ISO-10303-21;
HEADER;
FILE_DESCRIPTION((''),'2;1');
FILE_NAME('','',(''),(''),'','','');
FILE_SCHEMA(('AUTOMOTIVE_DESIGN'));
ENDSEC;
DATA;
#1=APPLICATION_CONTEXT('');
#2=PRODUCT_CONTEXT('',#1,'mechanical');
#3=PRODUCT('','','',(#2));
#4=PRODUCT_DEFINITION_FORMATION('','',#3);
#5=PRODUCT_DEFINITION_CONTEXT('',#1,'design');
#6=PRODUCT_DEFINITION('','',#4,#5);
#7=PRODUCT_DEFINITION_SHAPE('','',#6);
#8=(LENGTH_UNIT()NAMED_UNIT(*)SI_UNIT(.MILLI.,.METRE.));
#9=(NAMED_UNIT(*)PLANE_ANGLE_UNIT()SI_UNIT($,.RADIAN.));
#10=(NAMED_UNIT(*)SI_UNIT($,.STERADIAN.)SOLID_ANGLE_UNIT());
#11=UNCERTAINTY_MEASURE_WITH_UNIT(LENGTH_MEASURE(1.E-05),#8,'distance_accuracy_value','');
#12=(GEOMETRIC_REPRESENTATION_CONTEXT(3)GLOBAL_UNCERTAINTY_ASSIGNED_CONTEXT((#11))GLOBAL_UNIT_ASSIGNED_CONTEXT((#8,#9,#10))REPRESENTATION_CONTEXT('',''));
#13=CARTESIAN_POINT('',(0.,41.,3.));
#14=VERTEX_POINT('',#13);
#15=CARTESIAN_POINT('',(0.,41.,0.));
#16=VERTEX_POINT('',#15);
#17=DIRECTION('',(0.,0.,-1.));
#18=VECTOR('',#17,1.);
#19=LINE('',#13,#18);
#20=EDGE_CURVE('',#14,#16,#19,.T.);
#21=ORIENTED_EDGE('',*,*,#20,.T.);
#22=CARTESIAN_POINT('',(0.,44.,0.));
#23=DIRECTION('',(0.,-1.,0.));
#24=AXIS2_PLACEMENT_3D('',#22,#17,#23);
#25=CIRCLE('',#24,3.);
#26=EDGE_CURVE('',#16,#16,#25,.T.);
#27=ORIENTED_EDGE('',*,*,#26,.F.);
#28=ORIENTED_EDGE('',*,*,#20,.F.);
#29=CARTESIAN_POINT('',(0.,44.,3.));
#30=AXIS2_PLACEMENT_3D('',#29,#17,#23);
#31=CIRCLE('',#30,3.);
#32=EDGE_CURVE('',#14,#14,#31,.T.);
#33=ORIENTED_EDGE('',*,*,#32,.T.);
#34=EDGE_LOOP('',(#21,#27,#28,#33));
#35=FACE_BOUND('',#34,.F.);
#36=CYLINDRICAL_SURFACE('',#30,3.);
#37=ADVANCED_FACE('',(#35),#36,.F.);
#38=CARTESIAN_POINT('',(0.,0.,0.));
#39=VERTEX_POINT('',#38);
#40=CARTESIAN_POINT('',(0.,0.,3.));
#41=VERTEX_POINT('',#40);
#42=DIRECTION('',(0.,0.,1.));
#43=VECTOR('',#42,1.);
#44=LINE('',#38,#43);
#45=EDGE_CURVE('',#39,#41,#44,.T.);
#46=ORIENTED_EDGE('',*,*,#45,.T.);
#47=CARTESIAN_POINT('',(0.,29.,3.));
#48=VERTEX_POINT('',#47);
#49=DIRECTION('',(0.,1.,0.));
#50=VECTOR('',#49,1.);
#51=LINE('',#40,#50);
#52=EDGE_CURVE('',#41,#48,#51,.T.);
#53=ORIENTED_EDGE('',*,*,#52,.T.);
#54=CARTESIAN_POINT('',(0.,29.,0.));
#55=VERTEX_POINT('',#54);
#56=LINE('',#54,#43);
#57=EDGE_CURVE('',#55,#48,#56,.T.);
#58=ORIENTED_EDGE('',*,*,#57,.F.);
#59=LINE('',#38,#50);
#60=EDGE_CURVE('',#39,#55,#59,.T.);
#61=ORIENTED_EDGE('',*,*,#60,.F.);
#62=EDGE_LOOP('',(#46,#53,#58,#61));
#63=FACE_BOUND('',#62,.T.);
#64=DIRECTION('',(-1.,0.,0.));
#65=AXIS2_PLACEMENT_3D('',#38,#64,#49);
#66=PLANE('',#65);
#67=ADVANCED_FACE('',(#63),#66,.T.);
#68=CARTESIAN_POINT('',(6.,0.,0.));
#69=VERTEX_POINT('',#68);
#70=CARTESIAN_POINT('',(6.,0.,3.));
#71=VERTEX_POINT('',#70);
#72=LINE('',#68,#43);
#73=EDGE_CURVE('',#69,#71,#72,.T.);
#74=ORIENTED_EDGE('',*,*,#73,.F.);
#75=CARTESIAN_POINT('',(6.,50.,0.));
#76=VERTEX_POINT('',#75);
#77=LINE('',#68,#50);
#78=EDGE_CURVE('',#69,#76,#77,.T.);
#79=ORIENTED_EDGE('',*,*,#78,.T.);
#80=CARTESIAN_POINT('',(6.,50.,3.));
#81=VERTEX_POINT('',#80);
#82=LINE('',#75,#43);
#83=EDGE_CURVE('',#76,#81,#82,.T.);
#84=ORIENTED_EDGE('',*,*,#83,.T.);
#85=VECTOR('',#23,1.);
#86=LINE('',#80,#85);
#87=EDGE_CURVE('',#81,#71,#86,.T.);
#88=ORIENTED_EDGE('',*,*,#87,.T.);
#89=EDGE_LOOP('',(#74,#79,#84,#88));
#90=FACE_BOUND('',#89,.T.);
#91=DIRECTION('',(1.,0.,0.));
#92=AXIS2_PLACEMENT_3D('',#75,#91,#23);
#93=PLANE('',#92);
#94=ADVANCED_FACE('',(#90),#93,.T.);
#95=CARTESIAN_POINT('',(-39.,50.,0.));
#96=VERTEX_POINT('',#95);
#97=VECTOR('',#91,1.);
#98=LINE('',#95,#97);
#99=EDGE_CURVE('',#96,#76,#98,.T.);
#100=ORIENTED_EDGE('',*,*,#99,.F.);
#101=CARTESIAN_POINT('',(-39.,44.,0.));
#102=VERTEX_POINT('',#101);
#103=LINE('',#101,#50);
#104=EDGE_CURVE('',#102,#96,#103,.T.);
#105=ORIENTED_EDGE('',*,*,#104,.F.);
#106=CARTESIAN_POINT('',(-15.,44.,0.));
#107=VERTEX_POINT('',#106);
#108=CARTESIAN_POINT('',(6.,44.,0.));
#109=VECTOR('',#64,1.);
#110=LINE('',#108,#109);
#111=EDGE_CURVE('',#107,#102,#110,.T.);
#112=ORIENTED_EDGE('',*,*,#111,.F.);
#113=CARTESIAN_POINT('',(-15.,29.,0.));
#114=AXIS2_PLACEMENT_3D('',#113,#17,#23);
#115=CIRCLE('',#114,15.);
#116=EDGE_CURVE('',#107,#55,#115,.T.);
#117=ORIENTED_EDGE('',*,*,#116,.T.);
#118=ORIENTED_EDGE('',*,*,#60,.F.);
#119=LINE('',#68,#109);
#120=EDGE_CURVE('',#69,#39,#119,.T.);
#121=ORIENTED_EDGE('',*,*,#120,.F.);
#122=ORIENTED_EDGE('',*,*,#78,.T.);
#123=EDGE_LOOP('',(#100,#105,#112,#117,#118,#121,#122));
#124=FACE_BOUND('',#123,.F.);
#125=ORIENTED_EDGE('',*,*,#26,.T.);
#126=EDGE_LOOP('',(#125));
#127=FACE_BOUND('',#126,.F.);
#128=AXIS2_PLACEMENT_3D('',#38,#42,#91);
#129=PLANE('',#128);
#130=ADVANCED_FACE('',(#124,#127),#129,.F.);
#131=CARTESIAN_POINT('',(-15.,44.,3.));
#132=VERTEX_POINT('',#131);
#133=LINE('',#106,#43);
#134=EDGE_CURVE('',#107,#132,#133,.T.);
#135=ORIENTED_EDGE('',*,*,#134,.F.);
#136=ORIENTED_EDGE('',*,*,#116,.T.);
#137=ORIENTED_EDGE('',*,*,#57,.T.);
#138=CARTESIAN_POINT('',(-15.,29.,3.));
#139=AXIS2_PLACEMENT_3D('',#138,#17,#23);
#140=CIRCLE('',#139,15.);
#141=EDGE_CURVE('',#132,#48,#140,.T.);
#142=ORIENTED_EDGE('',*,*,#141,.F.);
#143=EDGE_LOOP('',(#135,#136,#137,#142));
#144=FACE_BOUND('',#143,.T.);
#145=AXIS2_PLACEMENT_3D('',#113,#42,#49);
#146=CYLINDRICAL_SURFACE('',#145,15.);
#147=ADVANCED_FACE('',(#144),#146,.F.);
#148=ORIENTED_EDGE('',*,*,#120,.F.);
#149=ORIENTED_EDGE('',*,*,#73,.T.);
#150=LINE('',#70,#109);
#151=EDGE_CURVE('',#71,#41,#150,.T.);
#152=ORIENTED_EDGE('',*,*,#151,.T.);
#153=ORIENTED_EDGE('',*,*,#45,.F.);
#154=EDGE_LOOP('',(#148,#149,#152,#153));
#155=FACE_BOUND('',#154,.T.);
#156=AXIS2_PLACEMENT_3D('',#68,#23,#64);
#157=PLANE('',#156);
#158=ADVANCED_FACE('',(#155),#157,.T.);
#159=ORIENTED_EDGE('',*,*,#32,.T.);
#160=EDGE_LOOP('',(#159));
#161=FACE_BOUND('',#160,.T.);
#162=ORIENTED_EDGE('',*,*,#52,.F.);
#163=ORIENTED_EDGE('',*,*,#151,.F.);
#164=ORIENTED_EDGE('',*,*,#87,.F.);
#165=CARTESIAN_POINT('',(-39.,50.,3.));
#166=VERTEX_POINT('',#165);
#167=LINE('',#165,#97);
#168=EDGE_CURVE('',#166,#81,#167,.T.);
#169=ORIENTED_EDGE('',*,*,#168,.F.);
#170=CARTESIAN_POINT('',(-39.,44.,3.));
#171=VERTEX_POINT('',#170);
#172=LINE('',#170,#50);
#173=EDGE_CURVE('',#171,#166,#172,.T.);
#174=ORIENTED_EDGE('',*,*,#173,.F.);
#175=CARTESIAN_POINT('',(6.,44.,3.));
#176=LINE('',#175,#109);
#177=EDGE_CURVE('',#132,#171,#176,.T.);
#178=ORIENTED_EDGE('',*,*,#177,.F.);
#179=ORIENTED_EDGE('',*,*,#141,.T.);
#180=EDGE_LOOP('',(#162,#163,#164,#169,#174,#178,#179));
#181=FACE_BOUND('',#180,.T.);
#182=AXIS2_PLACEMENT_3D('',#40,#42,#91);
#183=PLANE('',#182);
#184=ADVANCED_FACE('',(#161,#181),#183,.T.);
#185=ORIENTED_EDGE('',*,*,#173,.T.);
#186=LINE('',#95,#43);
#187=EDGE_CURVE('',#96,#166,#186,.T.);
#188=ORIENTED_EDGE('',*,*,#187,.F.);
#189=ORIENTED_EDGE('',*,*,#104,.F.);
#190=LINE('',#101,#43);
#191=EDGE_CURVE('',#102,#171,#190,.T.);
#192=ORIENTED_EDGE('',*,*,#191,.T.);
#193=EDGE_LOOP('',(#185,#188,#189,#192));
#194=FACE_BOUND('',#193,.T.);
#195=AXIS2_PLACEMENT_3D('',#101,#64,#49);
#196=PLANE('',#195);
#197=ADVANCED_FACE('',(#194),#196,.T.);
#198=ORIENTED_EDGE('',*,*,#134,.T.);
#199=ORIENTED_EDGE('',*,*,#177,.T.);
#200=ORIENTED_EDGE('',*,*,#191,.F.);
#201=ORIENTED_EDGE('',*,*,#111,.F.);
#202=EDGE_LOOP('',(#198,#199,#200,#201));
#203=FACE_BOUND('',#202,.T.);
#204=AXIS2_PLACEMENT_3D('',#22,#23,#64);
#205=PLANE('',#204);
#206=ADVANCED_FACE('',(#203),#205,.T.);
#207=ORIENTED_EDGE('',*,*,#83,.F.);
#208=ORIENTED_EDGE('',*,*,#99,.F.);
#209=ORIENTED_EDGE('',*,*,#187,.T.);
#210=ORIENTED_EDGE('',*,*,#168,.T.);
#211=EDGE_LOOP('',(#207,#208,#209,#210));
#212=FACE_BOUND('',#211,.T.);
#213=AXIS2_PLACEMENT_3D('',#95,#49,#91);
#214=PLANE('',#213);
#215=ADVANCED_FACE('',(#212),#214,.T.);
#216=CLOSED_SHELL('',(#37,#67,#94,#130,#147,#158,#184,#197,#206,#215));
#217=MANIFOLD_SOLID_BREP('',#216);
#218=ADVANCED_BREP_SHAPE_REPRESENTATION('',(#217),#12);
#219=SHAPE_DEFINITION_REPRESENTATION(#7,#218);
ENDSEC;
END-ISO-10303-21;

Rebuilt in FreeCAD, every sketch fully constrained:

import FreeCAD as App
import Part
import Sketcher
Q = App.Units.Quantity


def edges_at(feature, points):
    """Names of the edges that pass closest to the given points."""
    edges = feature.Shape.Edges
    near = lambda p: min(range(len(edges)), key=lambda i: edges[i].distToShape(Part.Vertex(*p))[0])
    return sorted({f"Edge{near(p) + 1}" for p in points})


def add_polygon(sketch, points):
    """Adds a closed chain of lines whose ends are joined by coincident constraints."""
    first, n = sketch.GeometryCount, len(points)
    for a, b in zip(points, points[1:] + points[:1]):
        sketch.addGeometry(Part.LineSegment(App.Vector(*a, 0), App.Vector(*b, 0)), False)
    for i in range(n):
        sketch.addConstraint(Sketcher.Constraint("Coincident", first + i, 2, first + (i + 1) % n, 1))

doc = App.newDocument("Part")
body = doc.addObject("PartDesign::Body", "Body")

# Sketch on XY plane
sketch1 = body.newObject("Sketcher::SketchObject", "Sketch")
sketch1.AttachmentSupport = (doc.getObject("XY_Plane"), [""])
sketch1.MapMode = "FlatFace"
add_polygon(sketch1, [(6, 50), (-39, 50), (-39, 44), (0, 44), (0, 0), (6, 0)])  # lines 0-5
sketch1.addConstraint([
    Sketcher.Constraint("Horizontal", 0),
    Sketcher.Constraint("Vertical", 1),
    Sketcher.Constraint("Horizontal", 2),
    Sketcher.Constraint("Vertical", 3),
    Sketcher.Constraint("Horizontal", 4),
    Sketcher.Constraint("Vertical", 5),
    Sketcher.Constraint("Coincident", 3, 2, -1, 1),
    Sketcher.Constraint("Equal", 4, 1),
    Sketcher.Constraint("DistanceX", 0, 2, 0, 1, Q("45 mm")),
    Sketcher.Constraint("DistanceX", 4, 1, 4, 2, Q("6 mm")),
    Sketcher.Constraint("DistanceY", 5, 1, 5, 2, Q("50 mm")),
])
pad1 = body.newObject("PartDesign::Pad", "Pad")
pad1.Profile = sketch1
pad1.Length = 3
doc.recompute()

fillet = body.newObject("PartDesign::Fillet", "Fillet")
fillet.Base = (pad1, edges_at(pad1, [(0, 44, 1.5)]))
fillet.Radius = 15

# Sketch on XY plane
sketch2 = body.newObject("Sketcher::SketchObject", "Sketch001")
sketch2.AttachmentSupport = (doc.getObject("XY_Plane"), [""])
sketch2.MapMode = "FlatFace"
sketch2.AttachmentOffset = App.Placement(App.Vector(0, 0, 3), App.Rotation())
sketch2.addGeometry(Part.Circle(App.Vector(0, 44, 0), App.Vector(0, 0, 1), 3), False)
sketch2.addConstraint([
    Sketcher.Constraint("PointOnObject", 0, 3, -2),
    Sketcher.Constraint("Diameter", 0, Q("6 mm")),
    Sketcher.Constraint("DistanceY", -1, 1, 0, 3, Q("44 mm")),
])
doc.recompute()
hole = body.newObject("PartDesign::Hole", "Hole")
hole.Profile = sketch2
hole.ThreadType = "None"
hole.Diameter = 6
hole.DepthType = "ThroughAll"

doc.recompute()
